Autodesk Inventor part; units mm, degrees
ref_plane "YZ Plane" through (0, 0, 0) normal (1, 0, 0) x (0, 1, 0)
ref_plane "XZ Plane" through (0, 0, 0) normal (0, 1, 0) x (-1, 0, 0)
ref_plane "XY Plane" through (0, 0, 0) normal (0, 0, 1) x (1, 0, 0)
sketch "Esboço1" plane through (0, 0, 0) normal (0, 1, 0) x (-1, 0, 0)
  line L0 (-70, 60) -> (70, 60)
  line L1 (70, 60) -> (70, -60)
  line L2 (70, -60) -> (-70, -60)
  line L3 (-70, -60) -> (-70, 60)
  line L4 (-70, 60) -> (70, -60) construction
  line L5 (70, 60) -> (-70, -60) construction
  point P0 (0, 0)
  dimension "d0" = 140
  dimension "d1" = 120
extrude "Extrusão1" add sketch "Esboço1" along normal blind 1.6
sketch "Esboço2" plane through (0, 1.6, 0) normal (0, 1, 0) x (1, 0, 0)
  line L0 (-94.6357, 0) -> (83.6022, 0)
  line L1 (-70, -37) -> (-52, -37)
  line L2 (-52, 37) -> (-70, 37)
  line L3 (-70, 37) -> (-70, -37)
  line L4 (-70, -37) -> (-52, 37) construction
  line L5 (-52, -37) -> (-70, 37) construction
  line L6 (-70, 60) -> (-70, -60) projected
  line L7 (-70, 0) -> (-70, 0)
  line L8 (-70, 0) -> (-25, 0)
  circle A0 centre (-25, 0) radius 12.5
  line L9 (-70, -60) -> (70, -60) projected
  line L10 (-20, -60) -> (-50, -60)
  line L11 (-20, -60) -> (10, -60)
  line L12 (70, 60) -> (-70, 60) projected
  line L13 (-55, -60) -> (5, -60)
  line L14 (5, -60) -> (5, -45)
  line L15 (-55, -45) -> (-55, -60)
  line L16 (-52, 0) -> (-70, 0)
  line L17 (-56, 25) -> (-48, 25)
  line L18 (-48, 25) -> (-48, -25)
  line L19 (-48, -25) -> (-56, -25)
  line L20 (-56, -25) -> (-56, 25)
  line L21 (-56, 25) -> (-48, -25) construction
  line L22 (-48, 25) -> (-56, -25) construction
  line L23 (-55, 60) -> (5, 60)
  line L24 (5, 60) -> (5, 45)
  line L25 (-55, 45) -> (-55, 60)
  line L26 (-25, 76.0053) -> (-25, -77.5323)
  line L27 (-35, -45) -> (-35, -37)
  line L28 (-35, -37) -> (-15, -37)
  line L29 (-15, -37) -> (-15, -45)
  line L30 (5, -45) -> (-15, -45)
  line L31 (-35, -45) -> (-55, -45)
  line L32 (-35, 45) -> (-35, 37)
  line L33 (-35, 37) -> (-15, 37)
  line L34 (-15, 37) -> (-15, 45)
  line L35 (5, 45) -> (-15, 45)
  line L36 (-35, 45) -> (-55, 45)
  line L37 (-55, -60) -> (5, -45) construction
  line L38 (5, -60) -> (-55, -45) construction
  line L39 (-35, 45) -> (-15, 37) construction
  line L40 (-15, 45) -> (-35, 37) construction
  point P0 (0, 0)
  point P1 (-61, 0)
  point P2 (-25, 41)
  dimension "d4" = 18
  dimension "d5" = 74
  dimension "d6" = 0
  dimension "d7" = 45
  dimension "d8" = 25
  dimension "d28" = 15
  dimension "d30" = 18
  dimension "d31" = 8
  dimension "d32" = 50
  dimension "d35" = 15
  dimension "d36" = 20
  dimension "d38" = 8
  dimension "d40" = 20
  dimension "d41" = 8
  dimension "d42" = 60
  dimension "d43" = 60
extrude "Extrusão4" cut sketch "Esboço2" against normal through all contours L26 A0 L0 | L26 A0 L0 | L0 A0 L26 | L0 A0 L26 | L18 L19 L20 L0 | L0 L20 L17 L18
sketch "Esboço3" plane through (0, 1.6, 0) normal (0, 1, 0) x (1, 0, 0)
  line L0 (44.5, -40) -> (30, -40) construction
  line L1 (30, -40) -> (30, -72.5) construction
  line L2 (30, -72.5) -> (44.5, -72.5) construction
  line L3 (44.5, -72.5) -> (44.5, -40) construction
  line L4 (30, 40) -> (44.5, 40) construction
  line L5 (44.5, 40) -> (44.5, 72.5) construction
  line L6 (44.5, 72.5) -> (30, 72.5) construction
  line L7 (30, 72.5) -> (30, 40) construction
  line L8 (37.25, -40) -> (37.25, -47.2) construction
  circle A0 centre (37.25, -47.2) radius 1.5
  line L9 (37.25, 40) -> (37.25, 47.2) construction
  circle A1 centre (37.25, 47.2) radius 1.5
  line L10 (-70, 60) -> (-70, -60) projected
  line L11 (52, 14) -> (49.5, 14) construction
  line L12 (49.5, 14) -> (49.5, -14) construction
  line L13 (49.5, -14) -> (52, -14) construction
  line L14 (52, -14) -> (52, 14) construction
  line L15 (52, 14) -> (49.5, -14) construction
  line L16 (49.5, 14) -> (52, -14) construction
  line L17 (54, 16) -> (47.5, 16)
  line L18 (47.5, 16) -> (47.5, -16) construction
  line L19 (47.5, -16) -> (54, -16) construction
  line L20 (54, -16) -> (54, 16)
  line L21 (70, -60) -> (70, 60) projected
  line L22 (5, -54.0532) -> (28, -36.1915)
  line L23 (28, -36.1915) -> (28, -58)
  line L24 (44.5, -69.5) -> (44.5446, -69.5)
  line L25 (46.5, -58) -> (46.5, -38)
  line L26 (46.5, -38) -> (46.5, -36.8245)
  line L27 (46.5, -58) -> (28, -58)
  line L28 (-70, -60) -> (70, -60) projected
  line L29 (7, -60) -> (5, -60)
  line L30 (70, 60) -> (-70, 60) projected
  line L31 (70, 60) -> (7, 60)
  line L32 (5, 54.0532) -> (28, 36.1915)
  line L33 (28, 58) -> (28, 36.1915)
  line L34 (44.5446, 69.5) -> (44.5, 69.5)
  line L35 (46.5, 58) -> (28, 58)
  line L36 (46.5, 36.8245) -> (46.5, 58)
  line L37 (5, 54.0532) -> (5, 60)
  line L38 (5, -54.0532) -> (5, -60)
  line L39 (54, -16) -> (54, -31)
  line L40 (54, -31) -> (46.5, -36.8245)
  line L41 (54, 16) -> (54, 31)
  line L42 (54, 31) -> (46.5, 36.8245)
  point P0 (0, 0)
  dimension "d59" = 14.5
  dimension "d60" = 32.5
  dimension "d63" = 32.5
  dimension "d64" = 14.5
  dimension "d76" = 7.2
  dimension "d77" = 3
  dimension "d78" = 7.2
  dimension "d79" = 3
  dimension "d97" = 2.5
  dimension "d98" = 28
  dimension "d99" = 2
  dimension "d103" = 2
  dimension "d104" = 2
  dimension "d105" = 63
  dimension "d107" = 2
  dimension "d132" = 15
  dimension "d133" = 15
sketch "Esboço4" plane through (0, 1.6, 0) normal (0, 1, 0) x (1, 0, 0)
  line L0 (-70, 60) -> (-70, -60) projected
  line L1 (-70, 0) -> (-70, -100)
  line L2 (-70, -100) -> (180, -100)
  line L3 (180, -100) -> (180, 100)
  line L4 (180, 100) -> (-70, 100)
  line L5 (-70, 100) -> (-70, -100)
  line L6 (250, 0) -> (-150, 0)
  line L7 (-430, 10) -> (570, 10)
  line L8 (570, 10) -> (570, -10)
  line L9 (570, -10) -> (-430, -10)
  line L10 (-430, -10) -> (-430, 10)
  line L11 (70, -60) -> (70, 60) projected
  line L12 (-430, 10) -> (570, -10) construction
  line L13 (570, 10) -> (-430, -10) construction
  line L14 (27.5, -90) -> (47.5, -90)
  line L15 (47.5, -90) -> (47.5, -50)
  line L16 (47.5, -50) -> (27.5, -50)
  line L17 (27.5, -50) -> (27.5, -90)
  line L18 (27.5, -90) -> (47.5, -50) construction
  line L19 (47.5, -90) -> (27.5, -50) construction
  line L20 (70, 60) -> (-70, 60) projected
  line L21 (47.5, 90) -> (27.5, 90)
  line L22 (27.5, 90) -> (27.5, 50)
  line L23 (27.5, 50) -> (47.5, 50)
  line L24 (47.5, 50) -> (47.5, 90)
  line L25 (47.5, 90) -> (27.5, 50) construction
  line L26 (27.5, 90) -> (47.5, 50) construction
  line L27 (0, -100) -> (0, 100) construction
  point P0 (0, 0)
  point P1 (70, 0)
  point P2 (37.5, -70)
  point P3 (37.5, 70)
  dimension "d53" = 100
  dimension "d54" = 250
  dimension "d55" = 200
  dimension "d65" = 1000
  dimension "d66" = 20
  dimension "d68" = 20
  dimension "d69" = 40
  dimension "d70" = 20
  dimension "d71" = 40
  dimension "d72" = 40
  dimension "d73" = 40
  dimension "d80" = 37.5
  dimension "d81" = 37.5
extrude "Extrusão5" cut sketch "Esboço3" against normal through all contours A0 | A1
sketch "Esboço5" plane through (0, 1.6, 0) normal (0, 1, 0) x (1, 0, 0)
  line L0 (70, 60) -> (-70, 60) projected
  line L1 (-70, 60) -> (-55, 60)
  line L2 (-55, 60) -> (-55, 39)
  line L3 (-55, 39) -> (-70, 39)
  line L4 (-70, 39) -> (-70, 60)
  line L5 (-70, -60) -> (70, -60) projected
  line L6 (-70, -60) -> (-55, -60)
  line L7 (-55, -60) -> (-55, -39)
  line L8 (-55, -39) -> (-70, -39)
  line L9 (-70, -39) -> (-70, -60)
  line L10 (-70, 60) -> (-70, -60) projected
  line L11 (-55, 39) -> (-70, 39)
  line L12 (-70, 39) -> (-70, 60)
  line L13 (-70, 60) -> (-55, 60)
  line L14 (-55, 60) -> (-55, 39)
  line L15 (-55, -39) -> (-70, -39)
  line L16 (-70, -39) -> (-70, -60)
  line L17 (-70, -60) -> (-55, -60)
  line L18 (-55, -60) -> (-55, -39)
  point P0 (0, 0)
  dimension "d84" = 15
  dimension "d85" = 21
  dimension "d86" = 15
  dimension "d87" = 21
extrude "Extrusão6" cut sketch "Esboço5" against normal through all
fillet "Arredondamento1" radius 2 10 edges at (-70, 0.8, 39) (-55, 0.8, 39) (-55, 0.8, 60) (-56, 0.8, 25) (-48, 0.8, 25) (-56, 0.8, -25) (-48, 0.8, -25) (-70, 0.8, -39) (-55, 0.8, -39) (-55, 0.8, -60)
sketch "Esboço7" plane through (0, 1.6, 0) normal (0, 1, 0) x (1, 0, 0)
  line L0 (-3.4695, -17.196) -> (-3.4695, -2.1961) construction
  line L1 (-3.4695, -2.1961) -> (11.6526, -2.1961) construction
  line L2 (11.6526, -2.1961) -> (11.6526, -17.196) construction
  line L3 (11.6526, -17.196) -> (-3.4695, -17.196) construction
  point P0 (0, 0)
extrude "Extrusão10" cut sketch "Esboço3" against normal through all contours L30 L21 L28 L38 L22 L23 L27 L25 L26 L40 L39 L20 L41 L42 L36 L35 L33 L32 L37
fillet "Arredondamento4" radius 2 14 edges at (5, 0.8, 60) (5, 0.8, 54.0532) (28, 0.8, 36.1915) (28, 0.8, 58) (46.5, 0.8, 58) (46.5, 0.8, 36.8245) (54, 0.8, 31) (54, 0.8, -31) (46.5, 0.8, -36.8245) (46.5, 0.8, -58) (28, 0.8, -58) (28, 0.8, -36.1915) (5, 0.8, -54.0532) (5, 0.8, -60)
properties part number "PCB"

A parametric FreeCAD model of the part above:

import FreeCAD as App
import Part
import Sketcher
from FreeCAD import Vector
Q = App.Units.Quantity


def edges_at(feature, points):
    """Names of the edges that pass closest to the given points."""
    edges = feature.Shape.Edges
    near = lambda p: min(range(len(edges)), key=lambda i: edges[i].distToShape(Part.Vertex(*p))[0])
    return sorted({f"Edge{near(p) + 1}" for p in points})

doc = App.newDocument("Part")
params = doc.addObject("Spreadsheet::Sheet", "Params")
for row, (alias, value) in enumerate([
    ("sketch1_width", "140 mm"),
    ("sketch1_height", "120 mm"),
    ("pad1_length", "1.6 mm"),
    ("sketch2_diameter", "25 mm"),
    ("sketch2_width", "8 mm"),
    ("sketch2_height", "50 mm"),
    ("sketch3_diameter", "3 mm"),
    ("sketch4_width", "15 mm"),
    ("sketch4_height", "21 mm"),
    ("fillet_radius", "2 mm"),
    ("sketch5_width", "65 mm"),
    ("sketch5_height", "62 mm"),
    ("sketch5_height2", "120 mm"),
    ("sketch5_width2", "18.5 mm"),
    ("fillet2_radius", "2 mm"),
], start=1):
    params.set(f"A{row}", alias)
    params.set(f"B{row}", "=" + value)
    params.setAlias(f"B{row}", alias)

body = doc.addObject("PartDesign::Body", "Body")

# Sketch on XZ plane
sketch1 = body.newObject("Sketcher::SketchObject", "Sketch")
sketch1.AttachmentSupport = (doc.getObject("XZ_Plane"), [""])
sketch1.MapMode = "FlatFace"
sketch1.addGeometry([
    Part.LineSegment(Vector(-70, 60, 0), Vector(70, 60, 0)),
    Part.LineSegment(Vector(70, 60, 0), Vector(70, -60, 0)),
    Part.LineSegment(Vector(70, -60, 0), Vector(-70, -60, 0)),
    Part.LineSegment(Vector(-70, -60, 0), Vector(-70, 60, 0)),
], False)
sketch1.addConstraint([
    Sketcher.Constraint("Coincident", 0, 2, 1, 1),
    Sketcher.Constraint("Coincident", 1, 2, 2, 1),
    Sketcher.Constraint("Coincident", 2, 2, 3, 1),
    Sketcher.Constraint("Coincident", 3, 2, 0, 1),
    Sketcher.Constraint("Horizontal", 0),
    Sketcher.Constraint("Vertical", 1),
    Sketcher.Constraint("Horizontal", 2),
    Sketcher.Constraint("Vertical", 3),
    Sketcher.Constraint("Symmetric", 0, 2, 2, 2, -1, 1),
    Sketcher.Constraint("DistanceX", 0, 1, 0, 2, Q("140 mm")),
    Sketcher.Constraint("DistanceY", 1, 2, 1, 1, Q("120 mm")),
])
sketch1.setExpression("Constraints[9]", "Params.sketch1_width")
sketch1.setExpression("Constraints[10]", "Params.sketch1_height")
pad1 = body.newObject("PartDesign::Pad", "Pad")
pad1.Profile = sketch1
pad1.setExpression("Length", "Params.pad1_length")
pad1.Reversed = True

# Sketch on XZ plane
sketch2 = body.newObject("Sketcher::SketchObject", "Sketch001")
sketch2.AttachmentSupport = (doc.getObject("XZ_Plane"), [""])
sketch2.MapMode = "FlatFace"
sketch2.AttachmentOffset = App.Placement(Vector(0, 0, -1.6), App.Rotation())
sketch2.addGeometry([
    Part.Circle(Vector(-25, 0, 0), Vector(0, 0, 1), 12),  # 0
    Part.LineSegment(Vector(-48, 25, 0), Vector(-48, -25, 0)),  # 1
    Part.LineSegment(Vector(-48, -25, 0), Vector(-56, -25, 0)),  # 2
    Part.LineSegment(Vector(-56, -25, 0), Vector(-56, 25, 0)),  # 3
    Part.LineSegment(Vector(-56, 25, 0), Vector(-48, 25, 0)),  # 4
], False)
sketch2.addConstraint([
    Sketcher.Constraint("Coincident", 1, 2, 2, 1),
    Sketcher.Constraint("Coincident", 2, 2, 3, 1),
    Sketcher.Constraint("Coincident", 3, 2, 4, 1),
    Sketcher.Constraint("Coincident", 4, 2, 1, 1),
    Sketcher.Constraint("Vertical", 1),
    Sketcher.Constraint("Horizontal", 2),
    Sketcher.Constraint("Vertical", 3),
    Sketcher.Constraint("Horizontal", 4),
    Sketcher.Constraint("PointOnObject", 0, 3, -1),
    Sketcher.Constraint("Diameter", 0, Q("25 mm")),
    Sketcher.Constraint("DistanceX", 2, 2, 2, 1, Q("8 mm")),
    Sketcher.Constraint("DistanceY", 1, 2, 1, 1, Q("50 mm")),
    Sketcher.Constraint("DistanceX", 0, 3, -1, 1, Q("25 mm")),
    Sketcher.Constraint("DistanceY", 1, 2, -1, 1, Q("25 mm")),
    Sketcher.Constraint("DistanceX", 1, 2, -1, 1, Q("48 mm")),
])
sketch2.setExpression("Constraints[9]", "Params.sketch2_diameter")
sketch2.setExpression("Constraints[10]", "Params.sketch2_width")
sketch2.setExpression("Constraints[11]", "Params.sketch2_height")
pocket1 = body.newObject("PartDesign::Pocket", "Pocket")
pocket1.Profile = sketch2
pocket1.Type = "ThroughAll"
pocket1.Reversed = True

# Sketch on XZ plane
sketch3 = body.newObject("Sketcher::SketchObject", "Sketch002")
sketch3.AttachmentSupport = (doc.getObject("XZ_Plane"), [""])
sketch3.MapMode = "FlatFace"
sketch3.AttachmentOffset = App.Placement(Vector(0, 0, -1.6), App.Rotation())
sketch3.addGeometry([
    Part.Circle(Vector(37.2, 47.2, 0), Vector(0, 0, 1), 1.5),
    Part.Circle(Vector(37.2, -47.2, 0), Vector(0, 0, 1), 1.5),
], False)
sketch3.addConstraint([
    Sketcher.Constraint("Equal", 0, 1),
    Sketcher.Constraint("Symmetric", 0, 3, 1, 3, -1),
    Sketcher.Constraint("Diameter", 0, Q("3 mm")),
    Sketcher.Constraint("DistanceY", -1, 1, 0, 3, Q("47.2 mm")),
    Sketcher.Constraint("DistanceX", -1, 1, 0, 3, Q("37.25 mm")),
])
sketch3.setExpression("Constraints[2]", "Params.sketch3_diameter")
pocket2 = body.newObject("PartDesign::Pocket", "Pocket001")
pocket2.Profile = sketch3
pocket2.Type = "ThroughAll"
pocket2.Reversed = True

# Sketch on XZ plane
sketch4 = body.newObject("Sketcher::SketchObject", "Sketch003")
sketch4.AttachmentSupport = (doc.getObject("XZ_Plane"), [""])
sketch4.MapMode = "FlatFace"
sketch4.AttachmentOffset = App.Placement(Vector(0, 0, -1.6), App.Rotation())
sketch4.addGeometry([
    Part.LineSegment(Vector(-55, -39, 0), Vector(-55, -60, 0)),  # 0
    Part.LineSegment(Vector(-55, -60, 0), Vector(-70, -60, 0)),  # 1
    Part.LineSegment(Vector(-70, -60, 0), Vector(-70, -39, 0)),  # 2
    Part.LineSegment(Vector(-70, -39, 0), Vector(-55, -39, 0)),  # 3
    Part.LineSegment(Vector(-55, 39, 0), Vector(-70, 39, 0)),  # 4
    Part.LineSegment(Vector(-70, 39, 0), Vector(-70, 60, 0)),  # 5
    Part.LineSegment(Vector(-70, 60, 0), Vector(-55, 60, 0)),  # 6
    Part.LineSegment(Vector(-55, 60, 0), Vector(-55, 39, 0)),  # 7
], False)
sketch4.addConstraint([
    Sketcher.Constraint("Coincident", 0, 2, 1, 1),
    Sketcher.Constraint("Coincident", 1, 2, 2, 1),
    Sketcher.Constraint("Coincident", 2, 2, 3, 1),
    Sketcher.Constraint("Coincident", 3, 2, 0, 1),
    Sketcher.Constraint("Coincident", 4, 2, 5, 1),
    Sketcher.Constraint("Coincident", 5, 2, 6, 1),
    Sketcher.Constraint("Coincident", 6, 2, 7, 1),
    Sketcher.Constraint("Coincident", 7, 2, 4, 1),
    Sketcher.Constraint("Vertical", 0),
    Sketcher.Constraint("Horizontal", 1),
    Sketcher.Constraint("Vertical", 2),
    Sketcher.Constraint("Horizontal", 3),
    Sketcher.Constraint("Horizontal", 4),
    Sketcher.Constraint("Vertical", 5),
    Sketcher.Constraint("Horizontal", 6),
    Sketcher.Constraint("Vertical", 7),
    Sketcher.Constraint("Symmetric", 2, 2, 4, 2, -1),
    Sketcher.Constraint("Symmetric", 0, 2, 6, 2, -1),
    Sketcher.Constraint("DistanceX", 1, 2, 1, 1, Q("15 mm")),
    Sketcher.Constraint("DistanceY", 0, 2, 0, 1, Q("21 mm")),
    Sketcher.Constraint("DistanceX", 0, 2, -1, 1, Q("55 mm")),
    Sketcher.Constraint("DistanceY", 0, 2, -1, 1, Q("60 mm")),
])
sketch4.setExpression("Constraints[18]", "Params.sketch4_width")
sketch4.setExpression("Constraints[19]", "Params.sketch4_height")
pocket3 = body.newObject("PartDesign::Pocket", "Pocket002")
pocket3.Profile = sketch4
pocket3.Type = "ThroughAll"
pocket3.Reversed = True
doc.recompute()

fillet = body.newObject("PartDesign::Fillet", "Fillet")
fillet.Base = (pocket3, edges_at(pocket3, [
    (-70, 0.8, 39),
    (-55, 0.8, 39),
    (-55, 0.8, 60),
    (-56, 0.8, 25),
    (-48, 0.8, 25),
    (-56, 0.8, -25),
    (-48, 0.8, -25),
    (-70, 0.8, -39),
    (-55, 0.8, -39),
    (-55, 0.8, -60),
]))
fillet.setExpression("Radius", "Params.fillet_radius")

# Sketch on XZ plane
sketch5 = body.newObject("Sketcher::SketchObject", "Sketch004")
sketch5.AttachmentSupport = (doc.getObject("XZ_Plane"), [""])
sketch5.MapMode = "FlatFace"
sketch5.AttachmentOffset = App.Placement(Vector(0, 0, -1.6), App.Rotation())
sketch5.addGeometry([
    Part.LineSegment(Vector(70, -60, 0), Vector(5, -60, 0)),  # 0
    Part.LineSegment(Vector(5, -60, 0), Vector(5, -54, 0)),  # 1
    Part.LineSegment(Vector(5, -54, 0), Vector(28, -36, 0)),  # 2
    Part.LineSegment(Vector(28, -36, 0), Vector(28, -58, 0)),  # 3
    Part.LineSegment(Vector(28, -58, 0), Vector(46, -58, 0)),  # 4
    Part.LineSegment(Vector(46, -58, 0), Vector(46, -37, 0)),  # 5
    Part.LineSegment(Vector(46, -37, 0), Vector(54, -31, 0)),  # 6
    Part.LineSegment(Vector(54, -31, 0), Vector(54, 31, 0)),  # 7
    Part.LineSegment(Vector(54, 31, 0), Vector(46, 37, 0)),  # 8
    Part.LineSegment(Vector(46, 37, 0), Vector(46, 58, 0)),  # 9
    Part.LineSegment(Vector(46, 58, 0), Vector(28, 58, 0)),  # 10
    Part.LineSegment(Vector(28, 58, 0), Vector(28, 36, 0)),  # 11
    Part.LineSegment(Vector(28, 36, 0), Vector(5, 54, 0)),  # 12
    Part.LineSegment(Vector(5, 54, 0), Vector(5, 60, 0)),  # 13
    Part.LineSegment(Vector(5, 60, 0), Vector(70, 60, 0)),  # 14
    Part.LineSegment(Vector(70, 60, 0), Vector(70, -60, 0)),  # 15
], False)
sketch5.addConstraint([
    Sketcher.Constraint("Coincident", 0, 2, 1, 1),
    Sketcher.Constraint("Coincident", 1, 2, 2, 1),
    Sketcher.Constraint("Coincident", 2, 2, 3, 1),
    Sketcher.Constraint("Coincident", 3, 2, 4, 1),
    Sketcher.Constraint("Coincident", 4, 2, 5, 1),
    Sketcher.Constraint("Coincident", 5, 2, 6, 1),
    Sketcher.Constraint("Coincident", 6, 2, 7, 1),
    Sketcher.Constraint("Coincident", 7, 2, 8, 1),
    Sketcher.Constraint("Coincident", 8, 2, 9, 1),
    Sketcher.Constraint("Coincident", 9, 2, 10, 1),
    Sketcher.Constraint("Coincident", 10, 2, 11, 1),
    Sketcher.Constraint("Coincident", 11, 2, 12, 1),
    Sketcher.Constraint("Coincident", 12, 2, 13, 1),
    Sketcher.Constraint("Coincident", 13, 2, 14, 1),
    Sketcher.Constraint("Coincident", 14, 2, 15, 1),
    Sketcher.Constraint("Coincident", 15, 2, 0, 1),
    Sketcher.Constraint("Horizontal", 0),
    Sketcher.Constraint("Vertical", 1),
    Sketcher.Constraint("Vertical", 3),
    Sketcher.Constraint("Horizontal", 4),
    Sketcher.Constraint("Vertical", 5),
    Sketcher.Constraint("Vertical", 7),
    Sketcher.Constraint("Vertical", 9),
    Sketcher.Constraint("Horizontal", 10),
    Sketcher.Constraint("Vertical", 11),
    Sketcher.Constraint("Vertical", 13),
    Sketcher.Constraint("Horizontal", 14),
    Sketcher.Constraint("Vertical", 15),
    Sketcher.Constraint("Symmetric", 5, 2, 8, 2, -1),
    Sketcher.Constraint("Symmetric", 3, 2, 10, 2, -1),
    Sketcher.Constraint("Symmetric", 1, 2, 12, 2, -1),
    Sketcher.Constraint("Parallel", 2, 6),
    Sketcher.Constraint("Parallel", 8, 12),
    Sketcher.Constraint("Equal", 3, 11),
    Sketcher.Constraint("Equal", 1, 13),
    Sketcher.Constraint("DistanceX", -1, 1, 2, 2, Q("28 mm")),
    Sketcher.Constraint("DistanceY", 0, 2, 3, 2, Q("2 mm")),
    Sketcher.Constraint("DistanceX", 0, 2, 0, 1, Q("65 mm")),
    Sketcher.Constraint("DistanceY", 7, 1, 7, 2, Q("62 mm")),
    Sketcher.Constraint("DistanceY", 15, 2, 15, 1, Q("120 mm")),
    Sketcher.Constraint("DistanceX", 4, 1, 4, 2, Q("18.5 mm")),
    Sketcher.Constraint("DistanceX", -1, 1, 0, 2, Q("5 mm")),
    Sketcher.Constraint("DistanceX", -1, 1, 6, 2, Q("54 mm")),
    Sketcher.Constraint("Distance", 6, Q("9.496 mm")),
    Sketcher.Constraint("DistanceY", 1, 1, 1, 2, Q("5.9468 mm")),
])
sketch5.setExpression("Constraints[37]", "Params.sketch5_width")
sketch5.setExpression("Constraints[38]", "Params.sketch5_height")
sketch5.setExpression("Constraints[39]", "Params.sketch5_height2")
sketch5.setExpression("Constraints[40]", "Params.sketch5_width2")
pocket4 = body.newObject("PartDesign::Pocket", "Pocket003")
pocket4.Profile = sketch5
pocket4.Type = "ThroughAll"
pocket4.Reversed = True
doc.recompute()

fillet2 = body.newObject("PartDesign::Fillet", "Fillet001")
fillet2.Base = (pocket4, edges_at(pocket4, [
    (5, 0.8, 60),
    (5, 0.8, 54.053),
    (28, 0.8, 36.191),
    (28, 0.8, 58),
    (46.5, 0.8, 58),
    (46.5, 0.8, 36.825),
    (54, 0.8, 31),
    (54, 0.8, -31),
    (46.5, 0.8, -36.825),
    (46.5, 0.8, -58),
    (28, 0.8, -58),
    (28, 0.8, -36.191),
    (5, 0.8, -54.053),
    (5, 0.8, -60),
]))
fillet2.setExpression("Radius", "Params.fillet2_radius")

doc.recompute()
